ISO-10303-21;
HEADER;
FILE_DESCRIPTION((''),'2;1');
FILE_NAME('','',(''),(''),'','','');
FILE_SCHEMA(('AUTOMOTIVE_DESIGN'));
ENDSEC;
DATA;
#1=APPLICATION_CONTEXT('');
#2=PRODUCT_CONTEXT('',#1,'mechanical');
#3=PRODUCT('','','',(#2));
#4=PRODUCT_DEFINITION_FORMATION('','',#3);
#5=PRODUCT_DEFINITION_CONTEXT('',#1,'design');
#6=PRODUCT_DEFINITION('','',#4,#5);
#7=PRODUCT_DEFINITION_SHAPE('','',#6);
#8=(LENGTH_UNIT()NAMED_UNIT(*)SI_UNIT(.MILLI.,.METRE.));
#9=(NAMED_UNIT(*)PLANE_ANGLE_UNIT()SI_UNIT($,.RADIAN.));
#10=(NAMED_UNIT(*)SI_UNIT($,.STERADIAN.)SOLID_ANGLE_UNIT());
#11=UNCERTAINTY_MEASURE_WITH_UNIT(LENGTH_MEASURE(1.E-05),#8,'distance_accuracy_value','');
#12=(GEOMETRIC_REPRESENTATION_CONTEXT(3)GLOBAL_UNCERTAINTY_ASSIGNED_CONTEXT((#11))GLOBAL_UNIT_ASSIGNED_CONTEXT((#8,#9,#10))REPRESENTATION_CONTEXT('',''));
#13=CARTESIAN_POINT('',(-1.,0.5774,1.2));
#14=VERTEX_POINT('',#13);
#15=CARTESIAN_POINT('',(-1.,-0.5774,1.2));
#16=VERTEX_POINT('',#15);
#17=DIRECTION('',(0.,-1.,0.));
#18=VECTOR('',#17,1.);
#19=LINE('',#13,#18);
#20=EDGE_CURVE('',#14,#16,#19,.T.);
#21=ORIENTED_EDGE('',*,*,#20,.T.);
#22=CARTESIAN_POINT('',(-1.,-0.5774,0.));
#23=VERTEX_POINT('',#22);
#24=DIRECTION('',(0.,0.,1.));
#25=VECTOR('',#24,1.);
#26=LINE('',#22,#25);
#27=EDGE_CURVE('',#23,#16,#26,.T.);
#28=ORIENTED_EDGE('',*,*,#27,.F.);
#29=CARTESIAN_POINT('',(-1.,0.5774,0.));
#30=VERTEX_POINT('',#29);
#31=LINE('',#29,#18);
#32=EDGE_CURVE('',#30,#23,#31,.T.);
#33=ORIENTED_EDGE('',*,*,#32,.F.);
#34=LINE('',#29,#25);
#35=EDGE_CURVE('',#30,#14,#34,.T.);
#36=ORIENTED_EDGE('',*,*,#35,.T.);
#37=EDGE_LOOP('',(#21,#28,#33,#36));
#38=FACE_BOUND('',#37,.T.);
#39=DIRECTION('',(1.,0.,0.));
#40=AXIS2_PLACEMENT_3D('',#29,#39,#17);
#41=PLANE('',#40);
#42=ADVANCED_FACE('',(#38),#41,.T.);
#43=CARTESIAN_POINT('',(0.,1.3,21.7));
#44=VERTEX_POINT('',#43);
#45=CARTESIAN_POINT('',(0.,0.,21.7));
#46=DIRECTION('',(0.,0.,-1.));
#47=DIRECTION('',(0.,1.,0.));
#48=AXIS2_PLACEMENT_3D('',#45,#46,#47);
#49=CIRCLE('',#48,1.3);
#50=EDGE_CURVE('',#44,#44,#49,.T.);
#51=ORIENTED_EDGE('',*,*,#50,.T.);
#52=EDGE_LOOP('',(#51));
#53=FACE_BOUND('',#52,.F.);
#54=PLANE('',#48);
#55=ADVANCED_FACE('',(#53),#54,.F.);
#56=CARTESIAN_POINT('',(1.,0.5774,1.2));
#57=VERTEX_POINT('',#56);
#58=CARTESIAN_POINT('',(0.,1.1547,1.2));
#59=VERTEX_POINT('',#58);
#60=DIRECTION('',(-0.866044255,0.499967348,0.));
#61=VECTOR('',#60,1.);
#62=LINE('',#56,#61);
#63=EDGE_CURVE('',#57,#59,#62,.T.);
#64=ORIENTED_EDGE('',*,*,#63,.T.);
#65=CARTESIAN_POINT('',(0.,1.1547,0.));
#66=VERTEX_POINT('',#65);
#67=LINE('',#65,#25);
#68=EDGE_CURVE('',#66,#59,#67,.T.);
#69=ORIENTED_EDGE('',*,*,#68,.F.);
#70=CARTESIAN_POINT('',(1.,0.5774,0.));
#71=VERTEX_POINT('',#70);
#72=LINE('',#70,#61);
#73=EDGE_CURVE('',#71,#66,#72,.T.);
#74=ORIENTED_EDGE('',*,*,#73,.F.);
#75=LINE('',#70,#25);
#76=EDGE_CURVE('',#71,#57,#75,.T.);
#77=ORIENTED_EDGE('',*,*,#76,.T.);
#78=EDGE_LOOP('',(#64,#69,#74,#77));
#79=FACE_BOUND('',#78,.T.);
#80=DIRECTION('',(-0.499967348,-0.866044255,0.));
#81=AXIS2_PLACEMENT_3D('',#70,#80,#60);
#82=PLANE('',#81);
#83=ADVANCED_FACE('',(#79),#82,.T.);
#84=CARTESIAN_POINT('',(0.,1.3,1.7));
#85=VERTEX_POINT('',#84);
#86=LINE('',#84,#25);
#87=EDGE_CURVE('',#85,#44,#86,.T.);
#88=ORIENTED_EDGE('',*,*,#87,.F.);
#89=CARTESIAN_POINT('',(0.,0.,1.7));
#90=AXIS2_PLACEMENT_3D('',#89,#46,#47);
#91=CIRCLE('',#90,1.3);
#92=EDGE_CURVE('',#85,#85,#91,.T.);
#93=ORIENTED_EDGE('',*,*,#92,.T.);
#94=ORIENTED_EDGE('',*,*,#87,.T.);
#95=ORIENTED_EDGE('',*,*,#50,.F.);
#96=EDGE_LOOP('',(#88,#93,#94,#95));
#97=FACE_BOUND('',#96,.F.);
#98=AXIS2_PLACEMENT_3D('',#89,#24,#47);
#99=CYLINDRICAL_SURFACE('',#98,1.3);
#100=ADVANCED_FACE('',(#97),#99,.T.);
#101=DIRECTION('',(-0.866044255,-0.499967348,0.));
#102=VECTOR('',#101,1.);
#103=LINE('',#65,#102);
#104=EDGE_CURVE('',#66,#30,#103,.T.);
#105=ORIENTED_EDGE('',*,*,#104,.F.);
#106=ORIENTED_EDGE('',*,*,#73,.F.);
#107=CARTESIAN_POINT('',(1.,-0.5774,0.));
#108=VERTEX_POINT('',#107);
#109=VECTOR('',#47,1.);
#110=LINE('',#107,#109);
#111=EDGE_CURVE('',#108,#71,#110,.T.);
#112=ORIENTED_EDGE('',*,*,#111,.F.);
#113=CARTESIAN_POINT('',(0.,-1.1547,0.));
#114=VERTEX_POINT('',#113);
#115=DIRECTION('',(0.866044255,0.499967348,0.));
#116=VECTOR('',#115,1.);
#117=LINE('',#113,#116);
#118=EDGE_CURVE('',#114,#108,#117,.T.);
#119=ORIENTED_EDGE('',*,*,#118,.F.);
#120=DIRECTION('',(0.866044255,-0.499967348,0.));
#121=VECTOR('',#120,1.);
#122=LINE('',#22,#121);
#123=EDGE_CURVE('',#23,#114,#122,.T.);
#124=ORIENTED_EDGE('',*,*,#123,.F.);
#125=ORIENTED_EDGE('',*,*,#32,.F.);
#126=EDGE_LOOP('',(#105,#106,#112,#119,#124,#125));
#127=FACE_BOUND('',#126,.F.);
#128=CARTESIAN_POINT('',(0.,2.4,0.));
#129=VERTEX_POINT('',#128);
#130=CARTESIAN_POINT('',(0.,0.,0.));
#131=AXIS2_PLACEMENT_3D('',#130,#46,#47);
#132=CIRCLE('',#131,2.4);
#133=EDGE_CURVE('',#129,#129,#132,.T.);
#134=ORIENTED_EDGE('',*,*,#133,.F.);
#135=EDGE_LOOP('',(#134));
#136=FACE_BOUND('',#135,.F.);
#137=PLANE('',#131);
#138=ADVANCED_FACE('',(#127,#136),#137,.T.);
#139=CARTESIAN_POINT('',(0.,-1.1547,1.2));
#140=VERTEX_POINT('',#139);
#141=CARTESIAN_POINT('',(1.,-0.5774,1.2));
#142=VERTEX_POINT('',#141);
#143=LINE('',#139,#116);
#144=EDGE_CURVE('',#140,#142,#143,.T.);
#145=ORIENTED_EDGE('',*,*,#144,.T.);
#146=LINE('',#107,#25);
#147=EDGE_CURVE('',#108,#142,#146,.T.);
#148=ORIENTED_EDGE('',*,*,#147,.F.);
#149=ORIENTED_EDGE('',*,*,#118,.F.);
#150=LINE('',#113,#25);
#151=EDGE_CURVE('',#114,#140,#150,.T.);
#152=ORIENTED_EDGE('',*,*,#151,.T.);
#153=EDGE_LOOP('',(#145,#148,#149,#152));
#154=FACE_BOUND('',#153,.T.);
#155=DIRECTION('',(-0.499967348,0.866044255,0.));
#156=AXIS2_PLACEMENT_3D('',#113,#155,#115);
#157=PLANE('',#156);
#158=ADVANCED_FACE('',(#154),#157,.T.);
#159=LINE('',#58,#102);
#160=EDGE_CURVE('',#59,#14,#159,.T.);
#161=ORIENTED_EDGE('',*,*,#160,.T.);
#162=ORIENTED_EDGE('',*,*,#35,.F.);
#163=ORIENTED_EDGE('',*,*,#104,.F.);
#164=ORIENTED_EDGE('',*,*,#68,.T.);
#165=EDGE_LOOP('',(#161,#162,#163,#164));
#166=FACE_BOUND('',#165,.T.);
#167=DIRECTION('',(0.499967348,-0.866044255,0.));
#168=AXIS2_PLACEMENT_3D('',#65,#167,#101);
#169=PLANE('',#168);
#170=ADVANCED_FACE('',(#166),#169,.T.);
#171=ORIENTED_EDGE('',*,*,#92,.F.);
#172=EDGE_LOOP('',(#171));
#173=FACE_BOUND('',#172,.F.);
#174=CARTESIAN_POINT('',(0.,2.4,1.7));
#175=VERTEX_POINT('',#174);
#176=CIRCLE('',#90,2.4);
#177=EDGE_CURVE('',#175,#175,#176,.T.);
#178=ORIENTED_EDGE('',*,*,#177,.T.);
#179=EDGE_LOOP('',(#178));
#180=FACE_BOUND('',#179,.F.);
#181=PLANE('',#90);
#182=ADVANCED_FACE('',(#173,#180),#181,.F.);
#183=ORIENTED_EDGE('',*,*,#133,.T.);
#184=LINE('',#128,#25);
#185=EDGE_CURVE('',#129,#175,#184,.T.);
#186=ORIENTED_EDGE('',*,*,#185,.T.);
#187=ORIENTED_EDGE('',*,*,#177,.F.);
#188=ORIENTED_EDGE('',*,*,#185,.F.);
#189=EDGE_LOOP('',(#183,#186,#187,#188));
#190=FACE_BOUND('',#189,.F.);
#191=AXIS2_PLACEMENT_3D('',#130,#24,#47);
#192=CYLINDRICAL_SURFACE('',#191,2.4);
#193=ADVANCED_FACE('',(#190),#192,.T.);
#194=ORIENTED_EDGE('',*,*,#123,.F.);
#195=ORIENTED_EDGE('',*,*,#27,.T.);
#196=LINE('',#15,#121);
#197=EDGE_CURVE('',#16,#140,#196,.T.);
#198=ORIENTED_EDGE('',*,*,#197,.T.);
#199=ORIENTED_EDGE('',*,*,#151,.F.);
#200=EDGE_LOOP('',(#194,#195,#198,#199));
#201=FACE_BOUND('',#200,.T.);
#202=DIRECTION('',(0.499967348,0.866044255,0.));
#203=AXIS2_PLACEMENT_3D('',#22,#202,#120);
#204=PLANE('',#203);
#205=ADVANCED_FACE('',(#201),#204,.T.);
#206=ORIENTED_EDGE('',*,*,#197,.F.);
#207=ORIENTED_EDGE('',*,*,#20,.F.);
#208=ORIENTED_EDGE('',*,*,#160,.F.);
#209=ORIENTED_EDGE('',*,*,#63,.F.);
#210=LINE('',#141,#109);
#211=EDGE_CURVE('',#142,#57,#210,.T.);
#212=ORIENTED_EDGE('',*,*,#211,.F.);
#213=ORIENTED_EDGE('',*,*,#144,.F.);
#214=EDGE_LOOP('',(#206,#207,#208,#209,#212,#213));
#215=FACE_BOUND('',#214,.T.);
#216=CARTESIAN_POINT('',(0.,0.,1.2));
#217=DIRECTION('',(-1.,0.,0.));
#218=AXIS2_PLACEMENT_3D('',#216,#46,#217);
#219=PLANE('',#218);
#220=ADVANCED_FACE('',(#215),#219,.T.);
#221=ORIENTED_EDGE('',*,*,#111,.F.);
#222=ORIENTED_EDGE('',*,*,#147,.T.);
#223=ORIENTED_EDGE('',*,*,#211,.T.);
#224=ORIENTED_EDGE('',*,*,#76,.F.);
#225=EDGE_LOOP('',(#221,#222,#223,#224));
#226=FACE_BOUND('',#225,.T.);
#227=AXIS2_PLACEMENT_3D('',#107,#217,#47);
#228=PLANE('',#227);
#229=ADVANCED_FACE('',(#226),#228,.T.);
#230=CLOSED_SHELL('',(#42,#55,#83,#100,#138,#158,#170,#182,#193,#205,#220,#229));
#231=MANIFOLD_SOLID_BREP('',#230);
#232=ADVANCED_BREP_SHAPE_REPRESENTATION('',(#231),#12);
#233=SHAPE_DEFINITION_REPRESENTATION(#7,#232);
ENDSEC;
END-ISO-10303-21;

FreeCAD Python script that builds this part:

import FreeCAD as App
import Part
import Sketcher

doc = App.newDocument("Part")
body = doc.addObject("PartDesign::Body", "Body")

# Sketch on YZ plane
sketch1 = body.newObject("Sketcher::SketchObject", "Sketch")
sketch1.AttachmentSupport = (doc.getObject("YZ_Plane"), [""])
sketch1.MapMode = "FlatFace"
sketch1.addGeometry(Part.LineSegment(App.Vector(1.3, 21.7, 0), App.Vector(0, 21.7, 0)), False)
sketch1.addGeometry(Part.LineSegment(App.Vector(0, 21.7, 0), App.Vector(0, 0, 0)), False)
sketch1.addGeometry(Part.LineSegment(App.Vector(0, 0, 0), App.Vector(2.4, 0, 0)), False)
sketch1.addGeometry(Part.LineSegment(App.Vector(2.4, 0, 0), App.Vector(2.4, 1.7, 0)), False)
sketch1.addGeometry(Part.LineSegment(App.Vector(2.4, 1.7, 0), App.Vector(1.3, 1.7, 0)), False)
sketch1.addGeometry(Part.LineSegment(App.Vector(1.3, 1.7, 0), App.Vector(1.3, 21.7, 0)), False)
sketch1.addConstraint(Sketcher.Constraint("Coincident", 0, 2, 1, 1))
sketch1.addConstraint(Sketcher.Constraint("Coincident", 1, 2, 2, 1))
sketch1.addConstraint(Sketcher.Constraint("Coincident", 2, 2, 3, 1))
sketch1.addConstraint(Sketcher.Constraint("Coincident", 3, 2, 4, 1))
sketch1.addConstraint(Sketcher.Constraint("Coincident", 4, 2, 5, 1))
sketch1.addConstraint(Sketcher.Constraint("Coincident", 5, 2, 0, 1))
sketch1.addConstraint(Sketcher.Constraint("Horizontal", 0))
sketch1.addConstraint(Sketcher.Constraint("Vertical", 1))
sketch1.addConstraint(Sketcher.Constraint("Horizontal", 2))
sketch1.addConstraint(Sketcher.Constraint("Vertical", 3))
sketch1.addConstraint(Sketcher.Constraint("Horizontal", 4))
sketch1.addConstraint(Sketcher.Constraint("Vertical", 5))
sketch1.addConstraint(Sketcher.Constraint("Coincident", 1, 2, -1, 1))
sketch1.addConstraint(Sketcher.Constraint("DistanceY", 5, 1, 5, 2, 20.0))
sketch1.addConstraint(Sketcher.Constraint("DistanceY", 3, 1, 3, 2, 1.7))
sketch1.addConstraint(Sketcher.Constraint("DistanceX", 0, 2, 0, 1, 1.3))
sketch1.addConstraint(Sketcher.Constraint("DistanceX", 2, 1, 2, 2, 2.4))
revolution = body.newObject("PartDesign::Revolution", "Revolution")
revolution.Profile = sketch1
revolution.ReferenceAxis = (sketch1, ["V_Axis"])
revolution.Angle = 360

# Sketch on XY plane
sketch2 = body.newObject("Sketcher::SketchObject", "Sketch001")
sketch2.AttachmentSupport = (doc.getObject("XY_Plane"), [""])
sketch2.MapMode = "FlatFace"
sketch2.addGeometry(Part.LineSegment(App.Vector(-1, 0.5774, 0), App.Vector(0, 1.1547, 0)), False)
sketch2.addGeometry(Part.LineSegment(App.Vector(0, 1.1547, 0), App.Vector(1, 0.5774, 0)), False)
sketch2.addGeometry(Part.LineSegment(App.Vector(1, 0.5774, 0), App.Vector(1, -0.5774, 0)), False)
sketch2.addGeometry(Part.LineSegment(App.Vector(1, -0.5774, 0), App.Vector(0, -1.1547, 0)), False)
sketch2.addGeometry(Part.LineSegment(App.Vector(0, -1.1547, 0), App.Vector(-1, -0.5774, 0)), False)
sketch2.addGeometry(Part.LineSegment(App.Vector(-1, -0.5774, 0), App.Vector(-1, 0.5774, 0)), False)
sketch2.addConstraint(Sketcher.Constraint("Coincident", 0, 2, 1, 1))
sketch2.addConstraint(Sketcher.Constraint("Coincident", 1, 2, 2, 1))
sketch2.addConstraint(Sketcher.Constraint("Coincident", 2, 2, 3, 1))
sketch2.addConstraint(Sketcher.Constraint("Coincident", 3, 2, 4, 1))
sketch2.addConstraint(Sketcher.Constraint("Coincident", 4, 2, 5, 1))
sketch2.addConstraint(Sketcher.Constraint("Coincident", 5, 2, 0, 1))
sketch2.addConstraint(Sketcher.Constraint("Vertical", 2))
sketch2.addConstraint(Sketcher.Constraint("Vertical", 5))
sketch2.addConstraint(Sketcher.Constraint("Symmetric", 0, 2, 3, 2, -1, 1))
sketch2.addConstraint(Sketcher.Constraint("Symmetric", 1, 2, 4, 2, -1, 1))
sketch2.addConstraint(Sketcher.Constraint("PointOnObject", 0, 2, -2))
sketch2.addConstraint(Sketcher.Constraint("Parallel", 0, 3))
sketch2.addConstraint(Sketcher.Constraint("Horizontal", 2, 2, 4, 2))
sketch2.addConstraint(Sketcher.Constraint("DistanceX", 4, 2, 2, 2, 2.0))
sketch2.addConstraint(Sketcher.Constraint("DistanceY", 2, 2, 2, 1, 1.1548))
sketch2.addConstraint(Sketcher.Constraint("DistanceY", 2, 2, 0, 2, 1.732))
pocket1 = body.newObject("PartDesign::Pocket", "Pocket")
pocket1.Profile = sketch2
pocket1.Length = 1.2
pocket1.Reversed = True

doc.recompute()
